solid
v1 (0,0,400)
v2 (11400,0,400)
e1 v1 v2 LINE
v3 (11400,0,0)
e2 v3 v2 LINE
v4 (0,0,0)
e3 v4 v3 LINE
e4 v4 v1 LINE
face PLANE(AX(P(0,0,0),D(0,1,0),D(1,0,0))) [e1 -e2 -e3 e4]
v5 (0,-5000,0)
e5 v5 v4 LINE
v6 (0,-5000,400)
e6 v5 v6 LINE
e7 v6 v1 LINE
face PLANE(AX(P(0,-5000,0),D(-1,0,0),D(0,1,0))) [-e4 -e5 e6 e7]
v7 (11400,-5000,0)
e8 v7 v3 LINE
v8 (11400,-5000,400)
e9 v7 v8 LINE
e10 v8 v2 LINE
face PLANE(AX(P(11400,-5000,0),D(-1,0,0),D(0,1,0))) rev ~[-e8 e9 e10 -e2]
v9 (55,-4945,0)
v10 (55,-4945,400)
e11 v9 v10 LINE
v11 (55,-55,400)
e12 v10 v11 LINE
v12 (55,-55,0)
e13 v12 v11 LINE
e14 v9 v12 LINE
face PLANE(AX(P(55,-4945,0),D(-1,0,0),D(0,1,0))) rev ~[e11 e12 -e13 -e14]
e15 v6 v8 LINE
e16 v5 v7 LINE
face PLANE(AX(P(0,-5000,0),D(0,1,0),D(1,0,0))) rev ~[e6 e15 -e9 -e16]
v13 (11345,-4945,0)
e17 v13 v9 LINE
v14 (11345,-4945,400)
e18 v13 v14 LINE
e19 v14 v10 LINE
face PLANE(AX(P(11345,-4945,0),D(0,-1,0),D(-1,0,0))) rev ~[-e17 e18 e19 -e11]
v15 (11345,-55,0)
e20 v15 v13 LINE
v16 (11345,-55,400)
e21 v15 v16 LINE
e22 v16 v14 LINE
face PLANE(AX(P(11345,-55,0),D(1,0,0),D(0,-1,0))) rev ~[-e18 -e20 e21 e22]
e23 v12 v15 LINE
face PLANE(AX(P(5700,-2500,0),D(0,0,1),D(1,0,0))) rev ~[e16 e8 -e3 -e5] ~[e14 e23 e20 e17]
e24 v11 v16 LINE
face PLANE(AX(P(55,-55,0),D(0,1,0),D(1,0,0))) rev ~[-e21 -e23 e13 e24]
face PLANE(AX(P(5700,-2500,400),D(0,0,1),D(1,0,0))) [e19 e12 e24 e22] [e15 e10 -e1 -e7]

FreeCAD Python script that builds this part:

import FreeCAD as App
import Part
import Sketcher
from FreeCAD import Vector
Q = App.Units.Quantity


def add_polygon(sketch, points):
    """Adds a closed chain of lines whose ends are joined by coincident constraints."""
    first, n = sketch.GeometryCount, len(points)
    for a, b in zip(points, points[1:] + points[:1]):
        sketch.addGeometry(Part.LineSegment(App.Vector(*a, 0), App.Vector(*b, 0)), False)
    for i in range(n):
        sketch.addConstraint(Sketcher.Constraint("Coincident", first + i, 2, first + (i + 1) % n, 1))

doc = App.newDocument("Part")
body = doc.addObject("PartDesign::Body", "Body")

sketch1 = doc.addObject("Sketcher::SketchObject", "Sketch")
body.addObject(sketch1)
sketch1.AttachmentSupport = (doc.XY_Plane, [""])
sketch1.MapMode = "FlatFace"
add_polygon(sketch1, [(0, 0), (0, -5000), (11400, -5000), (11400, 0)])
add_polygon(sketch1, [(11345, -4945), (55, -4945), (55, -55), (11345, -55)])
sketch1.addConstraint([
    Sketcher.Constraint("Vertical", 0),
    Sketcher.Constraint("Horizontal", 1),
    Sketcher.Constraint("Vertical", 2),
    Sketcher.Constraint("Horizontal", 3),
    Sketcher.Constraint("Horizontal", 4),
    Sketcher.Constraint("Vertical", 5),
    Sketcher.Constraint("Horizontal", 6),
    Sketcher.Constraint("Vertical", 7),
    Sketcher.Constraint("Coincident", 3, 2, -1, 1),
    Sketcher.Constraint("DistanceX", 1, 1, 1, 2, Q("11400 mm")),
    Sketcher.Constraint("DistanceX", 4, 2, 4, 1, Q("11290 mm")),
    Sketcher.Constraint("DistanceY", 0, 2, 0, 1, Q("5000 mm")),
    Sketcher.Constraint("DistanceY", 5, 1, 5, 2, Q("4890 mm")),
    Sketcher.Constraint("DistanceX", -1, 1, 4, 2, Q("55 mm")),
    Sketcher.Constraint("DistanceY", 4, 2, -1, 1, Q("4945 mm")),
])
pad1 = doc.addObject("PartDesign::Pad", "Pad")
body.addObject(pad1)
pad1.Profile = sketch1
pad1.Length = 400

doc.recompute()
